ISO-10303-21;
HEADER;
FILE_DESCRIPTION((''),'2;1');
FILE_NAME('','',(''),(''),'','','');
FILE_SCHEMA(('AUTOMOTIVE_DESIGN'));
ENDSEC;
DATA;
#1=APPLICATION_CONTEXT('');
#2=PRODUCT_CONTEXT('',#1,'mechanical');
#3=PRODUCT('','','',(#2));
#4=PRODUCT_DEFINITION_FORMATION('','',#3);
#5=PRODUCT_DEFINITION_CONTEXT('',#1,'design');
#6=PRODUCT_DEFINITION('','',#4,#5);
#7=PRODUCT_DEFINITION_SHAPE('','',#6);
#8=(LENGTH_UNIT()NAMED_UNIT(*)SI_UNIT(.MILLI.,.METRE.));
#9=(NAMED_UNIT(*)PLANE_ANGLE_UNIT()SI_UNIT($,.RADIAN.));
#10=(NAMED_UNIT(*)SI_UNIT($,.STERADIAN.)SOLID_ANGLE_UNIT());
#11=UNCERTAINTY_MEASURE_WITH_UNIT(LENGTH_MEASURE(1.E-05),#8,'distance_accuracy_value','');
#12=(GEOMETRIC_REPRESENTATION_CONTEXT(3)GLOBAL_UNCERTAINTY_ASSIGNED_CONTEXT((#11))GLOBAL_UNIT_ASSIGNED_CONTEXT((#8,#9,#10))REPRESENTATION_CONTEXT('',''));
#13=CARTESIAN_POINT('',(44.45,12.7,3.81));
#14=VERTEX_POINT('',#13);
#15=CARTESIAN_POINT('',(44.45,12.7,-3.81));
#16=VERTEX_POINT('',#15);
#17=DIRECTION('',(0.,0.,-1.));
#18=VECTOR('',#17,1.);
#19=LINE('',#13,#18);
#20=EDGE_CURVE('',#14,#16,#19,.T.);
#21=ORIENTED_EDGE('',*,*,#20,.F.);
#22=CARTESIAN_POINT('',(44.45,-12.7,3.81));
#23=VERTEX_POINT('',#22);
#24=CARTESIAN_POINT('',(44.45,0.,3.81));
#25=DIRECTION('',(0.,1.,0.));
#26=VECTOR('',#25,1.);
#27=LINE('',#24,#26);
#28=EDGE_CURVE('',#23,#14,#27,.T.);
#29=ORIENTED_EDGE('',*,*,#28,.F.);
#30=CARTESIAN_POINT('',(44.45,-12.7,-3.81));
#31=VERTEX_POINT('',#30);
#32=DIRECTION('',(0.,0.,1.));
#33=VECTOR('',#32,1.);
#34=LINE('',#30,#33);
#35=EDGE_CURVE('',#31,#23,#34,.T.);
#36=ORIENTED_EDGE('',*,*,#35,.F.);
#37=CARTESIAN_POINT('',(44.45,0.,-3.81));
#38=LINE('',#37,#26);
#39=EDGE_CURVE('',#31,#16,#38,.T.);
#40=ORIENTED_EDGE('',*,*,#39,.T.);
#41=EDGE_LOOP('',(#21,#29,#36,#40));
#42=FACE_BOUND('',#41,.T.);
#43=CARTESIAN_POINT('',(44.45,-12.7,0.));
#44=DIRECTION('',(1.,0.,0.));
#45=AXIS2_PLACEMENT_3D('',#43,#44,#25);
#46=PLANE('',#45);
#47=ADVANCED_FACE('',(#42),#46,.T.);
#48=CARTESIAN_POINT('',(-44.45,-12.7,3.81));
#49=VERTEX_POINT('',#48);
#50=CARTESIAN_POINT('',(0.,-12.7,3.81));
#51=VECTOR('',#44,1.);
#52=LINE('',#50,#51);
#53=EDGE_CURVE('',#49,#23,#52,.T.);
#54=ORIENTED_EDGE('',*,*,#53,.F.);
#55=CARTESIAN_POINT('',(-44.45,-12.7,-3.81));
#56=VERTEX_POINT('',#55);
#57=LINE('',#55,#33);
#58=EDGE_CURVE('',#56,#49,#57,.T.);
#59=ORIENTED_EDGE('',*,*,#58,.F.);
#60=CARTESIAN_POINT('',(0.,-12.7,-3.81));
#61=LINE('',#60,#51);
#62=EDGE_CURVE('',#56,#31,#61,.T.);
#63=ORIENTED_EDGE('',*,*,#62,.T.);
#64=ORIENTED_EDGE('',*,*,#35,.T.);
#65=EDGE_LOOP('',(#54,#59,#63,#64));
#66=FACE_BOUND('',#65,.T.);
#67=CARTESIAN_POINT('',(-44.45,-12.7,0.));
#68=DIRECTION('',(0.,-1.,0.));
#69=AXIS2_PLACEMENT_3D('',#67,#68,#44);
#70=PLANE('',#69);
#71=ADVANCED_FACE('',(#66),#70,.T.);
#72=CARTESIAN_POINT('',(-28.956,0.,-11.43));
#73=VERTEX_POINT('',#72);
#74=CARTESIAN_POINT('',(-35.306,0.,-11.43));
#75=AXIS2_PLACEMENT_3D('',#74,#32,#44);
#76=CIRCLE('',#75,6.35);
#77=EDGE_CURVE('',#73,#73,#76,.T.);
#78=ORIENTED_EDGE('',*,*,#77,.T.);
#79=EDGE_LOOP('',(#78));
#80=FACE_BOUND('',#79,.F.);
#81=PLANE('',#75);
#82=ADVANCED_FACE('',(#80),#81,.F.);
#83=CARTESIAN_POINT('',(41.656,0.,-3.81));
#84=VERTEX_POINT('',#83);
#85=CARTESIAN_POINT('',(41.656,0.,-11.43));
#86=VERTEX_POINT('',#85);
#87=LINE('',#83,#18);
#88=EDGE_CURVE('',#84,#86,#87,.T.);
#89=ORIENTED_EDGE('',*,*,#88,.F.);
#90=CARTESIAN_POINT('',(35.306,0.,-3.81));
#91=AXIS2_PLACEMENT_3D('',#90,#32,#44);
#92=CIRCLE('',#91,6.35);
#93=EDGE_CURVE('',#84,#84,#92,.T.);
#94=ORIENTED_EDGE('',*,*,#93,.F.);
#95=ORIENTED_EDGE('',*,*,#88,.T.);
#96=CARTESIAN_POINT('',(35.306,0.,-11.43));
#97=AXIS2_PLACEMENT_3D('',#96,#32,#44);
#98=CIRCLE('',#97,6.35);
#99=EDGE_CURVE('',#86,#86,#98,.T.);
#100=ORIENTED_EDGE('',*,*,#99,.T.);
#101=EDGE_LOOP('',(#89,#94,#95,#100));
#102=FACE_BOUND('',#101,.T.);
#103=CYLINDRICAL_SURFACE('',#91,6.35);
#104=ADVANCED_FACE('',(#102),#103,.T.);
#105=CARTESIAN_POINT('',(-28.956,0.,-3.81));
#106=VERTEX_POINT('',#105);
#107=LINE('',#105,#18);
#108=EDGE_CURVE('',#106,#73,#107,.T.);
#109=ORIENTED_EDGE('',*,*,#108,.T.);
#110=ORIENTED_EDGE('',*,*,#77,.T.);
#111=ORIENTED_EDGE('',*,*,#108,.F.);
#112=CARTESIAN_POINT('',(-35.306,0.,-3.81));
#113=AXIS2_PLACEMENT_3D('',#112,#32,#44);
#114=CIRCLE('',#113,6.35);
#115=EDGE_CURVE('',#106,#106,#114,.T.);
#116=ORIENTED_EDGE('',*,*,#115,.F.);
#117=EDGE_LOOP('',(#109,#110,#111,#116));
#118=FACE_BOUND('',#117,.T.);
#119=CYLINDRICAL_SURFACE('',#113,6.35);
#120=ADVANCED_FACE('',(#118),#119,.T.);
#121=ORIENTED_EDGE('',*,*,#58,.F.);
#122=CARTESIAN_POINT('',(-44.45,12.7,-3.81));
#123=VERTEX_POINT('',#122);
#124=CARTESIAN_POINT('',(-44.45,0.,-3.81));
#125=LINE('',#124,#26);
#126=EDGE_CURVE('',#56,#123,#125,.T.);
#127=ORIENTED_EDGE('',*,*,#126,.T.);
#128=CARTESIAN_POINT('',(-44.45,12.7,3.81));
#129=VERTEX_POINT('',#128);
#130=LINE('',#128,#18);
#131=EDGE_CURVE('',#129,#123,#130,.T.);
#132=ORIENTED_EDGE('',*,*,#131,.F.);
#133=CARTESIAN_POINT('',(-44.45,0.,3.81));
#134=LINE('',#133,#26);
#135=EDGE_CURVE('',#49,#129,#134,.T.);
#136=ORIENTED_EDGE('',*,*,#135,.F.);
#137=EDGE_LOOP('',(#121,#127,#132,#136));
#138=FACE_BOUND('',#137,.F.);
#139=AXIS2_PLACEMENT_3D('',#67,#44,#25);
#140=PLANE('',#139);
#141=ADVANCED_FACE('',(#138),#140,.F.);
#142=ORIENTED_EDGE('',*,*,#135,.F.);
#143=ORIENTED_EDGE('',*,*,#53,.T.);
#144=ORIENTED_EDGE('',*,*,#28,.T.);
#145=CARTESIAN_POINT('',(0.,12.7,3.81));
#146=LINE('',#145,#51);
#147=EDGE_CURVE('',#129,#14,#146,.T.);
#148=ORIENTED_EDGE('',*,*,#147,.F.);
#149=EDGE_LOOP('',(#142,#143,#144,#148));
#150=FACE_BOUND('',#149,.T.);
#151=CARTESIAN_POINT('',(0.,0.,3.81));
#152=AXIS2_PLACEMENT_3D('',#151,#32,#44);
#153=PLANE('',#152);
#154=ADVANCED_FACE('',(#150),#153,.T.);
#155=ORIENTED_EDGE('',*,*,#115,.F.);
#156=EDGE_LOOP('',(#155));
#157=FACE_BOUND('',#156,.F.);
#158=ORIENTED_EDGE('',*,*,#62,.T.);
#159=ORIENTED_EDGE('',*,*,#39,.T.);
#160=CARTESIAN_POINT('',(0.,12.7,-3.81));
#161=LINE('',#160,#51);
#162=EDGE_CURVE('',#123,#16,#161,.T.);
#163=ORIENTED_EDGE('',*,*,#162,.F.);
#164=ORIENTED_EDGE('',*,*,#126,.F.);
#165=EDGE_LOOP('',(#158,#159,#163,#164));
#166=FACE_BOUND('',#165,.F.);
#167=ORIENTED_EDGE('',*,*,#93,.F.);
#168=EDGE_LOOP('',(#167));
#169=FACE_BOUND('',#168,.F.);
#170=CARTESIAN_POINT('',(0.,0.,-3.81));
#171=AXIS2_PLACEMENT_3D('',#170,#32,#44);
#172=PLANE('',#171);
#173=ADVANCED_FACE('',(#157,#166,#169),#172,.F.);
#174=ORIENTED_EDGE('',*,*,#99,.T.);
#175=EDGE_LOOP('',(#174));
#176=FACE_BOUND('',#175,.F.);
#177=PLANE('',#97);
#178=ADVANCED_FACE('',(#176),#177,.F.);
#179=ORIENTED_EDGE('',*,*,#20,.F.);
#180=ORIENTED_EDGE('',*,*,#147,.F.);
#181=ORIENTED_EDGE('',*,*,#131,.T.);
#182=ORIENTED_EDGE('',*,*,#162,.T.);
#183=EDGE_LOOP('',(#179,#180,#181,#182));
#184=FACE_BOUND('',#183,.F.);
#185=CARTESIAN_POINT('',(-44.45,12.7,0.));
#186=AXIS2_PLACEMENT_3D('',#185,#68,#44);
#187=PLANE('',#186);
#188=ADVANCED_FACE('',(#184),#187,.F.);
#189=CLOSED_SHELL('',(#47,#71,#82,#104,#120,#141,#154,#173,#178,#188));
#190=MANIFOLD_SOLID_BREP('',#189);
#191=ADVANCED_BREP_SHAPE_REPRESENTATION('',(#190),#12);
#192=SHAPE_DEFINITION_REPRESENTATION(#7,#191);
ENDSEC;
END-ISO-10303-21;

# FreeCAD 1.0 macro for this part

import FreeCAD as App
import Part
import Sketcher
Q = App.Units.Quantity


def add_polygon(sketch, points):
    """Adds a closed chain of lines whose ends are joined by coincident constraints."""
    first, n = sketch.GeometryCount, len(points)
    for a, b in zip(points, points[1:] + points[:1]):
        sketch.addGeometry(Part.LineSegment(App.Vector(*a, 0), App.Vector(*b, 0)), False)
    for i in range(n):
        sketch.addConstraint(Sketcher.Constraint("Coincident", first + i, 2, first + (i + 1) % n, 1))

doc = App.newDocument("Part")
body = doc.addObject("PartDesign::Body", "Body")

# Sketch on XY plane
sketch1 = body.newObject("Sketcher::SketchObject", "Sketch")
sketch1.AttachmentSupport = (doc.getObject("XY_Plane"), [""])
sketch1.MapMode = "FlatFace"
add_polygon(sketch1, [(-44, 13), (-44, -13), (44, -13), (44, 13)])  # lines 0-3
sketch1.addConstraint([
    Sketcher.Constraint("Vertical", 0),
    Sketcher.Constraint("Horizontal", 1),
    Sketcher.Constraint("Vertical", 2),
    Sketcher.Constraint("Horizontal", 3),
    Sketcher.Constraint("Symmetric", 0, 2, 2, 2, -1, 1),
    Sketcher.Constraint("DistanceY", 0, 2, 0, 1, Q("1 in")),
    Sketcher.Constraint("DistanceX", 1, 1, 1, 2, Q("3.5 in")),
])
pad1 = body.newObject("PartDesign::Pad", "Pad")
pad1.Profile = sketch1
pad1.Length = Q("0.3 in")
pad1.Midplane = True

# Sketch on XY plane
sketch2 = body.newObject("Sketcher::SketchObject", "Sketch001")
sketch2.AttachmentSupport = (doc.getObject("XY_Plane"), [""])
sketch2.MapMode = "FlatFace"
sketch2.AttachmentOffset = App.Placement(App.Vector(0, 0, -0.15 * 25.4), App.Rotation())
sketch2.addGeometry([
    Part.Circle(App.Vector(-35, 0, 0), App.Vector(0, 0, 1), 6),
    Part.Circle(App.Vector(35, 0, 0), App.Vector(0, 0, 1), 6),
], False)
sketch2.addConstraint([
    Sketcher.Constraint("Equal", 0, 1),
    Sketcher.Constraint("Symmetric", 0, 3, 1, 3, -1, 1),
    Sketcher.Constraint("PointOnObject", 0, 3, -1),
    Sketcher.Constraint("Diameter", 0, Q("0.5 in")),
    Sketcher.Constraint("DistanceX", 0, 3, -1, 1, Q("1.39 in")),
])
pad2 = body.newObject("PartDesign::Pad", "Pad001")
pad2.Profile = sketch2
pad2.Length = Q("0.3 in")
pad2.Reversed = True

doc.recompute()
